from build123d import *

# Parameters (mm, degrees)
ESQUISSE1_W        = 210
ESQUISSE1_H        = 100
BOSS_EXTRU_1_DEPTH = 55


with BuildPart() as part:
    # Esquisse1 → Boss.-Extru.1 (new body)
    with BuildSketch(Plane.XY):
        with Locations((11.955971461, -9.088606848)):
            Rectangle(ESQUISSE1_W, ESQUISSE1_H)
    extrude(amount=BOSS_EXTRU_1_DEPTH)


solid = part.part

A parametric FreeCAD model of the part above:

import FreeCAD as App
import Part
import Sketcher

V = App.Vector

doc = App.newDocument("Part")
body = doc.addObject("PartDesign::Body", "Body")

# Sketch on XY plane
sketch1 = body.newObject("Sketcher::SketchObject", "Sketch")
sketch1.AttachmentSupport = (doc.getObject("XY_Plane"), [""])
sketch1.MapMode = "FlatFace"
sketch1.addGeometry(Part.LineSegment(V(-93, 41, 0), V(-93, -59, 0)), False)
sketch1.addGeometry(Part.LineSegment(V(-93, -59, 0), V(117, -59, 0)), False)
sketch1.addGeometry(Part.LineSegment(V(117, -59, 0), V(117, 41, 0)), False)
sketch1.addGeometry(Part.LineSegment(V(117, 41, 0), V(-93, 41, 0)), False)
sketch1.addConstraint(Sketcher.Constraint("Coincident", 0, 2, 1, 1))
sketch1.addConstraint(Sketcher.Constraint("Coincident", 1, 2, 2, 1))
sketch1.addConstraint(Sketcher.Constraint("Coincident", 2, 2, 3, 1))
sketch1.addConstraint(Sketcher.Constraint("Coincident", 3, 2, 0, 1))
sketch1.addConstraint(Sketcher.Constraint("Vertical", 0))
sketch1.addConstraint(Sketcher.Constraint("Horizontal", 1))
sketch1.addConstraint(Sketcher.Constraint("Vertical", 2))
sketch1.addConstraint(Sketcher.Constraint("Horizontal", 3))
sketch1.addConstraint(Sketcher.Constraint("DistanceX", 1, 1, 1, 2, 210.0))
sketch1.addConstraint(Sketcher.Constraint("DistanceY", 0, 2, 0, 1, 100.0))
sketch1.addConstraint(Sketcher.Constraint("DistanceX", 0, 2, -1, 1, 93.044029))
sketch1.addConstraint(Sketcher.Constraint("DistanceY", 0, 2, -1, 1, 59.088607))
pad1 = body.newObject("PartDesign::Pad", "Pad")
pad1.Profile = sketch1
pad1.Length = 55

doc.recompute()
